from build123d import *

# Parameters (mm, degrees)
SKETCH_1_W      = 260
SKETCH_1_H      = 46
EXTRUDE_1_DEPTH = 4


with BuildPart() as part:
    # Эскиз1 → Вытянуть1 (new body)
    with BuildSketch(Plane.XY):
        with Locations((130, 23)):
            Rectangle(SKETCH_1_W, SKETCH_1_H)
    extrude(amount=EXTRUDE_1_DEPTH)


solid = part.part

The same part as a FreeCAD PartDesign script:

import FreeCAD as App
import Part
import Sketcher

V = App.Vector

doc = App.newDocument("Part")
params = doc.addObject("Spreadsheet::Sheet", "Params")
for row, (alias, value) in enumerate([
    ("sketch1_width", "260 mm"),
    ("sketch1_height", "46 mm"),
    ("pad1_length", "4 mm"),
], start=1):
    params.set(f"A{row}", alias)
    params.set(f"B{row}", "=" + value)
    params.setAlias(f"B{row}", alias)

body = doc.addObject("PartDesign::Body", "Body")

# Sketch on XY plane
sketch1 = doc.addObject("Sketcher::SketchObject", "Sketch")
body.addObject(sketch1)
sketch1.AttachmentSupport = (doc.XY_Plane, [""])
sketch1.MapMode = "FlatFace"
sketch1.addGeometry(Part.LineSegment(V(0, 46, 0), V(0, 0, 0)), False)
sketch1.addGeometry(Part.LineSegment(V(0, 0, 0), V(260, 0, 0)), False)
sketch1.addGeometry(Part.LineSegment(V(260, 0, 0), V(260, 46, 0)), False)
sketch1.addGeometry(Part.LineSegment(V(260, 46, 0), V(0, 46, 0)), False)
sketch1.addConstraint(Sketcher.Constraint("Coincident", 0, 2, 1, 1))
sketch1.addConstraint(Sketcher.Constraint("Coincident", 1, 2, 2, 1))
sketch1.addConstraint(Sketcher.Constraint("Coincident", 2, 2, 3, 1))
sketch1.addConstraint(Sketcher.Constraint("Coincident", 3, 2, 0, 1))
sketch1.addConstraint(Sketcher.Constraint("Vertical", 0))
sketch1.addConstraint(Sketcher.Constraint("Horizontal", 1))
sketch1.addConstraint(Sketcher.Constraint("Vertical", 2))
sketch1.addConstraint(Sketcher.Constraint("Horizontal", 3))
sketch1.addConstraint(Sketcher.Constraint("Coincident", 0, 2, -1, 1))
sketch1.addConstraint(Sketcher.Constraint("DistanceX", 1, 1, 1, 2, 260.0))
sketch1.addConstraint(Sketcher.Constraint("DistanceY", 0, 2, 0, 1, 46.0))
sketch1.setExpression("Constraints[9]", "Params.sketch1_width")
sketch1.setExpression("Constraints[10]", "Params.sketch1_height")
pad1 = doc.addObject("PartDesign::Pad", "Pad")
body.addObject(pad1)
pad1.Profile = sketch1
pad1.setExpression("Length", "Params.pad1_length")

doc.recompute()
